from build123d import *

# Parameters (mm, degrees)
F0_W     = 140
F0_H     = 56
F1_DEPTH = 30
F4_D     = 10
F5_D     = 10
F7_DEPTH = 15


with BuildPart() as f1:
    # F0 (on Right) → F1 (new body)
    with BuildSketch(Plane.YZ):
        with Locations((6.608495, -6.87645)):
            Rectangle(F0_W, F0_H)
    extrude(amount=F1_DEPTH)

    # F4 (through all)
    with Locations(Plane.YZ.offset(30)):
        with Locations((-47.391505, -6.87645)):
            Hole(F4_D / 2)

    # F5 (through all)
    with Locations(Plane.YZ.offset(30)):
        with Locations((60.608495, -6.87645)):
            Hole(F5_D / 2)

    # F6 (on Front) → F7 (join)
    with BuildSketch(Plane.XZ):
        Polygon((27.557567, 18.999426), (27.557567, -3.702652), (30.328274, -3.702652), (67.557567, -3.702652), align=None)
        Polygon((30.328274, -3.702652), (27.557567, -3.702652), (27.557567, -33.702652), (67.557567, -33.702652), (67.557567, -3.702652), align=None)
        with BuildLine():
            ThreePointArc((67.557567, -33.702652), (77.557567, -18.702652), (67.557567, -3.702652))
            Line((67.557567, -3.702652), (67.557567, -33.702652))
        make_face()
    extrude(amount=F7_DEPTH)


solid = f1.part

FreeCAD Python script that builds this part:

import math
import FreeCAD as App
import Part
import Sketcher
from FreeCAD import Vector

doc = App.newDocument("Part")
body = doc.addObject("PartDesign::Body", "Body")

# Sketch on YZ plane
sketch1 = body.newObject("Sketcher::SketchObject", "Sketch")
sketch1.AttachmentSupport = (doc.getObject("YZ_Plane"), [""])
sketch1.MapMode = "FlatFace"
sketch1.addGeometry([
    Part.LineSegment(Vector(-63, 21, 0), Vector(-63, -35, 0)),
    Part.LineSegment(Vector(-63, -35, 0), Vector(77, -35, 0)),
    Part.LineSegment(Vector(77, -35, 0), Vector(77, 21, 0)),
    Part.LineSegment(Vector(77, 21, 0), Vector(-63, 21, 0)),
], False)
sketch1.addConstraint([
    Sketcher.Constraint("Coincident", 0, 2, 1, 1),
    Sketcher.Constraint("Coincident", 1, 2, 2, 1),
    Sketcher.Constraint("Coincident", 2, 2, 3, 1),
    Sketcher.Constraint("Coincident", 3, 2, 0, 1),
    Sketcher.Constraint("Vertical", 0),
    Sketcher.Constraint("Horizontal", 1),
    Sketcher.Constraint("Vertical", 2),
    Sketcher.Constraint("Horizontal", 3),
    Sketcher.Constraint("DistanceX", 1, 1, 1, 2, 140.0),
    Sketcher.Constraint("DistanceY", 0, 2, 0, 1, 56.0),
    Sketcher.Constraint("DistanceY", 0, 2, -1, 1, 34.87645),
    Sketcher.Constraint("DistanceX", 0, 2, -1, 1, 63.391505),
])
pad1 = body.newObject("PartDesign::Pad", "Pad")
pad1.Profile = sketch1
pad1.Length = 30

# Sketch on YZ plane
sketch2 = body.newObject("Sketcher::SketchObject", "Sketch001")
sketch2.AttachmentSupport = (doc.getObject("YZ_Plane"), [""])
sketch2.MapMode = "FlatFace"
sketch2.AttachmentOffset = App.Placement(Vector(0, 0, 30), App.Rotation())
sketch2.addGeometry(Part.Circle(Vector(-47, -7, 0), Vector(0, 0, 1), 5), False)
sketch2.addConstraint([
    Sketcher.Constraint("Diameter", 0, 10.0),
    Sketcher.Constraint("DistanceY", 0, 3, -1, 1, 6.87645),
    Sketcher.Constraint("DistanceX", 0, 3, -1, 1, 47.391505),
])
doc.recompute()
hole = body.newObject("PartDesign::Hole", "Hole")
hole.Profile = sketch2
hole.ThreadType = "None"
hole.Diameter = 10
hole.DepthType = "ThroughAll"

# Sketch on YZ plane
sketch3 = body.newObject("Sketcher::SketchObject", "Sketch002")
sketch3.AttachmentSupport = (doc.getObject("YZ_Plane"), [""])
sketch3.MapMode = "FlatFace"
sketch3.AttachmentOffset = App.Placement(Vector(0, 0, 30), App.Rotation())
sketch3.addGeometry(Part.Circle(Vector(61, -7, 0), Vector(0, 0, 1), 5), False)
sketch3.addConstraint([
    Sketcher.Constraint("Diameter", 0, 10.0),
    Sketcher.Constraint("DistanceY", 0, 3, -1, 1, 6.87645),
    Sketcher.Constraint("DistanceX", -1, 1, 0, 3, 60.608495),
])
doc.recompute()
hole2 = body.newObject("PartDesign::Hole", "Hole001")
hole2.Profile = sketch3
hole2.ThreadType = "None"
hole2.Diameter = 10
hole2.DepthType = "ThroughAll"

# Sketch on XZ plane
sketch4 = body.newObject("Sketcher::SketchObject", "Sketch003")
sketch4.AttachmentSupport = (doc.getObject("XZ_Plane"), [""])
sketch4.MapMode = "FlatFace"
sketch4.addGeometry([
    Part.LineSegment(Vector(28, 19, 0), Vector(28, -34, 0)),
    Part.LineSegment(Vector(28, -34, 0), Vector(68, -34, 0)),
    Part.ArcOfCircle(Part.Circle(Vector(61, -19, 0), Vector(0, 0, 1), 16), math.radians(-67), math.radians(67)),
    Part.LineSegment(Vector(68, -4, 0), Vector(28, 19, 0)),
], False)
sketch4.addConstraint([
    Sketcher.Constraint("Coincident", 0, 2, 1, 1),
    Sketcher.Constraint("Coincident", 1, 2, 2, 1),
    Sketcher.Constraint("Coincident", 2, 2, 3, 1),
    Sketcher.Constraint("Coincident", 3, 2, 0, 1),
    Sketcher.Constraint("Vertical", 0),
    Sketcher.Constraint("Horizontal", 1),
    Sketcher.Constraint("Vertical", 1, 2, 2, 2),
    Sketcher.Constraint("DistanceX", 1, 1, 1, 2, 40.0),
    Sketcher.Constraint("Radius", 2, 16.25),
    Sketcher.Constraint("DistanceY", 0, 2, 2, 3, 15.0),
    Sketcher.Constraint("DistanceY", 0, 2, 0, 1, 52.702078),
    Sketcher.Constraint("DistanceX", -1, 1, 2, 3, 61.307567),
    Sketcher.Constraint("DistanceY", 2, 3, -1, 1, 18.702652),
])
pad2 = body.newObject("PartDesign::Pad", "Pad001")
pad2.Profile = sketch4
pad2.Length = 15

doc.recompute()
